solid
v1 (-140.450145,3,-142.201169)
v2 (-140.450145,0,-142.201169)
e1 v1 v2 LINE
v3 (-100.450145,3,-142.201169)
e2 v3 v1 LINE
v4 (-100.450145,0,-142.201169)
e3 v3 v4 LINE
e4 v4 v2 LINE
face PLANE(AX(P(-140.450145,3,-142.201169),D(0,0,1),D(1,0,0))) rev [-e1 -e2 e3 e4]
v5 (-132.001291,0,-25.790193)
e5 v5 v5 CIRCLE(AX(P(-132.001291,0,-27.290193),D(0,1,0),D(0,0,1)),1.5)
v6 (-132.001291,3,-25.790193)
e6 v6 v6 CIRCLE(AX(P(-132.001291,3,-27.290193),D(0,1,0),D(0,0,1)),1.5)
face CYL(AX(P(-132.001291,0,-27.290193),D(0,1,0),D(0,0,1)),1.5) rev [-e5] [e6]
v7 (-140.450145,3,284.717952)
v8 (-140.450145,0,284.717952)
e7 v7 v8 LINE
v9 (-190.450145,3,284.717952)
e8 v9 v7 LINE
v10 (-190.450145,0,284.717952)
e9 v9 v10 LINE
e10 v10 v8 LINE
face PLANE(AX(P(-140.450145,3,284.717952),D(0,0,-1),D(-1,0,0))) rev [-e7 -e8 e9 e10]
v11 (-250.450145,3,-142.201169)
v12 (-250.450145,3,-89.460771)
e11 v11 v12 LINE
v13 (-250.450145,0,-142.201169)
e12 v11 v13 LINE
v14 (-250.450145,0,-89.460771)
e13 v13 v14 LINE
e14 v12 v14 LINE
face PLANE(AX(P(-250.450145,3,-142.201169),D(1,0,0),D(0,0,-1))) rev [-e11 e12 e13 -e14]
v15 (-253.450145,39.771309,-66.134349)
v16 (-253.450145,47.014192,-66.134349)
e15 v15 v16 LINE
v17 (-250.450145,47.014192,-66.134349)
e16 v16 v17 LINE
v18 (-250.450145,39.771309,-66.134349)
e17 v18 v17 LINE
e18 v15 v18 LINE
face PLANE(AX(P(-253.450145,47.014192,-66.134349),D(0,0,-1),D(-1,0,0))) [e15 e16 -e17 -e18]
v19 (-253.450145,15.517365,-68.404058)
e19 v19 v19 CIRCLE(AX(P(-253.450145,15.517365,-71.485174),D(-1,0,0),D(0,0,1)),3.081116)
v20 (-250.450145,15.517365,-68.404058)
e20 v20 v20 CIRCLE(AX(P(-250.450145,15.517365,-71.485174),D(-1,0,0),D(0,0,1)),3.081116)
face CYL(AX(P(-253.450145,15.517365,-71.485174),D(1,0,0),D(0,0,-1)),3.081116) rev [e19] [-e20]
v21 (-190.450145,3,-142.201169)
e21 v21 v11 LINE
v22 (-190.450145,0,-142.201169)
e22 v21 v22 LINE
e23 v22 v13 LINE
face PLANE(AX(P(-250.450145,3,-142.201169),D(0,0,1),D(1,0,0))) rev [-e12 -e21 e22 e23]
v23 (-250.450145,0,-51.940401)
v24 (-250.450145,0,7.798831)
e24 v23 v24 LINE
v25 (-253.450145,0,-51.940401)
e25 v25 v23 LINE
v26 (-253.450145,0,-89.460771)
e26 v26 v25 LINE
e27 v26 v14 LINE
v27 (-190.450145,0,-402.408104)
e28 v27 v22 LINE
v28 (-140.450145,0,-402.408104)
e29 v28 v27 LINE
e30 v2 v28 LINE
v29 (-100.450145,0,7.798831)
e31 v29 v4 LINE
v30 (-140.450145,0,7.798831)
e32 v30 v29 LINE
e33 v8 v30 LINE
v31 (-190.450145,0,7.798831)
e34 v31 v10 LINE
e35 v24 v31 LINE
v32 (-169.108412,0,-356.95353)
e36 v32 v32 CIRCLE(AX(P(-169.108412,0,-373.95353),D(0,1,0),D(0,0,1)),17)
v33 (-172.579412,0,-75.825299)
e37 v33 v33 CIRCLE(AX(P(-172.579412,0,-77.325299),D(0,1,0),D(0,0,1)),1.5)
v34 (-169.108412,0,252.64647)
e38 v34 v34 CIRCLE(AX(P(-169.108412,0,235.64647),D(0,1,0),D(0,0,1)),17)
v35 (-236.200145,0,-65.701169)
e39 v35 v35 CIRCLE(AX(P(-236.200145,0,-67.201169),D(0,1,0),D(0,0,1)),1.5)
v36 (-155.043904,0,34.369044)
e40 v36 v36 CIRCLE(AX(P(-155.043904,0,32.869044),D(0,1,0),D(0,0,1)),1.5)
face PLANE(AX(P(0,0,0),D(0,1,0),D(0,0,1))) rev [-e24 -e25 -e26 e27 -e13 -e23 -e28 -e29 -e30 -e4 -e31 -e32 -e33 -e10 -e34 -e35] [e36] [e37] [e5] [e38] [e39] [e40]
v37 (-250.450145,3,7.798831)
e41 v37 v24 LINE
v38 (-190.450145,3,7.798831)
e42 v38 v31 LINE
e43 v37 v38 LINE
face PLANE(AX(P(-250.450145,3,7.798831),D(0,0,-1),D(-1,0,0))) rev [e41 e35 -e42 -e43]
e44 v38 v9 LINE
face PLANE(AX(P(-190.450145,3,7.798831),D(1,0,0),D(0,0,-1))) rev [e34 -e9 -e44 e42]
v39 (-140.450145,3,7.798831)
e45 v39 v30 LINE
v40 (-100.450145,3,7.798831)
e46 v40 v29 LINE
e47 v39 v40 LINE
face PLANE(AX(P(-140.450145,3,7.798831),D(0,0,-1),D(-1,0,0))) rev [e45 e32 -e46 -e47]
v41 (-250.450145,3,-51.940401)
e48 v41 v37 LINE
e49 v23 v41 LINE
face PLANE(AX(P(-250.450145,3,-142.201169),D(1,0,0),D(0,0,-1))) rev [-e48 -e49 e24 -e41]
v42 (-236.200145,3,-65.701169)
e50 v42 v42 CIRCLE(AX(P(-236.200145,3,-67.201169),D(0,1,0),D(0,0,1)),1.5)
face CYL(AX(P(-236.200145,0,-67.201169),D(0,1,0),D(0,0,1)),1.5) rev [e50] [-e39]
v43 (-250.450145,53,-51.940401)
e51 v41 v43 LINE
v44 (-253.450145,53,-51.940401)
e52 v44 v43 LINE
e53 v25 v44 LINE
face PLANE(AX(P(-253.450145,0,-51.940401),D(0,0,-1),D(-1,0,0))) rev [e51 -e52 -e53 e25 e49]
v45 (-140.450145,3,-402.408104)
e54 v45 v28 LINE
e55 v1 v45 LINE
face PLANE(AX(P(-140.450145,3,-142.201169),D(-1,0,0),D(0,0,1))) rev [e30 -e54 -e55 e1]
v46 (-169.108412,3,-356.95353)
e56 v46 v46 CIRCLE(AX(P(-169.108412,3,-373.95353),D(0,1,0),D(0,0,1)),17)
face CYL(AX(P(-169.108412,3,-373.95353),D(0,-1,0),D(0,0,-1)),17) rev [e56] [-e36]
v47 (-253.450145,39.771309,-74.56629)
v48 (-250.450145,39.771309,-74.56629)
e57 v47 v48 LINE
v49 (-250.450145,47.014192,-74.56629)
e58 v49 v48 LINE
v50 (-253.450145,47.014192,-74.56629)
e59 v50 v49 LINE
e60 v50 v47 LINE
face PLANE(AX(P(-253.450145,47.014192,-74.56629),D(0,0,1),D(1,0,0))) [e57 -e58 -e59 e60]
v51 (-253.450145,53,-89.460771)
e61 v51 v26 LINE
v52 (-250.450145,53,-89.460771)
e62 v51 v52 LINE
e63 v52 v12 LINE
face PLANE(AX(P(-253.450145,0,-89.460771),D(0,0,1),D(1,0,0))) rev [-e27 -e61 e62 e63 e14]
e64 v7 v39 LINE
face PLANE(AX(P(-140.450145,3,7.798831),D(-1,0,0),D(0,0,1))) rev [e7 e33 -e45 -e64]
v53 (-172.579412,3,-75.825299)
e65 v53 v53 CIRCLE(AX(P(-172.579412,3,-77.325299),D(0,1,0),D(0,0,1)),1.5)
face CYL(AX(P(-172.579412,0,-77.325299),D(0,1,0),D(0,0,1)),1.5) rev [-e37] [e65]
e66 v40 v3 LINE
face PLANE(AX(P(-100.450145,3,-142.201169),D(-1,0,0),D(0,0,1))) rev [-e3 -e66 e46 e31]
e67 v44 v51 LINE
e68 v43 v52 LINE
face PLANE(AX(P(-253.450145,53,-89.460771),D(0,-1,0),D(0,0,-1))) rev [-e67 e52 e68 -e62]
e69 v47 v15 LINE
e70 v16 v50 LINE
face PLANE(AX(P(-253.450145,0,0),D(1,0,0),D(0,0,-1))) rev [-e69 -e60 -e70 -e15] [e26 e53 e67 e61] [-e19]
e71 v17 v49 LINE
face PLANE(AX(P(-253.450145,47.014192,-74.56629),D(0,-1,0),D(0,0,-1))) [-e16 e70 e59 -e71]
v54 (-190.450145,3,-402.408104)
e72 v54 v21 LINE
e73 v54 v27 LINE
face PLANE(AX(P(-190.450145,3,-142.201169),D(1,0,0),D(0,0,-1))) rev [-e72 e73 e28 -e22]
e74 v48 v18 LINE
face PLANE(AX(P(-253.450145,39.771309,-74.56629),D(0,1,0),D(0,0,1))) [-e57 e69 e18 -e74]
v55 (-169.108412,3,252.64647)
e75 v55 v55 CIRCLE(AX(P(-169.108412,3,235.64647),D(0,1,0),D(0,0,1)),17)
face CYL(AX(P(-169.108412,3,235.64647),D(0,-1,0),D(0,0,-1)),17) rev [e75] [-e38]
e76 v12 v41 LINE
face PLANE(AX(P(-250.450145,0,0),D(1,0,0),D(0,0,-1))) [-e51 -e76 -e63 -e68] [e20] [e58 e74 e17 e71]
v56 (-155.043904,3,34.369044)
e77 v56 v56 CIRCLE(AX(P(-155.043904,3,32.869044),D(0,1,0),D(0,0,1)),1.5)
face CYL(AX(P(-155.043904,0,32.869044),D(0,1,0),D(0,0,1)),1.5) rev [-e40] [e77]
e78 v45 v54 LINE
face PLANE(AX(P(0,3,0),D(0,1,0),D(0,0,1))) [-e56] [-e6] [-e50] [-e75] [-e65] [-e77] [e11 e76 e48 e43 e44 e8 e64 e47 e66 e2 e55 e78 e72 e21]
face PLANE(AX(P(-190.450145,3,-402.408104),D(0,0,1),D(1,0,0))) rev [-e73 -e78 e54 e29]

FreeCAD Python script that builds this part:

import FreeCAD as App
import Part
import Sketcher
Q = App.Units.Quantity


def add_polygon(sketch, points):
    """Adds a closed chain of lines whose ends are joined by coincident constraints."""
    first, n = sketch.GeometryCount, len(points)
    for a, b in zip(points, points[1:] + points[:1]):
        sketch.addGeometry(Part.LineSegment(App.Vector(*a, 0), App.Vector(*b, 0)), False)
    for i in range(n):
        sketch.addConstraint(Sketcher.Constraint("Coincident", first + i, 2, first + (i + 1) % n, 1))

doc = App.newDocument("Part")
params = doc.addObject("Spreadsheet::Sheet", "Params")
for row, (alias, value) in enumerate([
    ("sketch1_diameter", "34 mm"),
    ("sketch1_width", "40 mm"),
    ("sketch1_width2", "50 mm"),
    ("sketch1_width3", "60 mm"),
    ("sketch1_height", "150 mm"),
    ("pad1_length", "3 mm"),
    ("sketch2_width", "53 mm"),
    ("pad2_length", "3 mm"),
    ("sketch3_diameter", "3 mm"),
    ("pocket1_length", "3 mm"),
], start=1):
    params.set(f"A{row}", alias)
    params.set(f"B{row}", "=" + value)
    params.setAlias(f"B{row}", alias)

body = doc.addObject("PartDesign::Body", "Body")

# Sketch on XZ plane
sketch1 = doc.addObject("Sketcher::SketchObject", "Sketch")
body.addObject(sketch1)
sketch1.AttachmentSupport = (doc.XZ_Plane, [""])
sketch1.MapMode = "FlatFace"
add_polygon(sketch1, [(-100.450145, -142.201169), (-140.450145, -142.201169), (-140.450145, -402.408104), (-190.450145, -402.408104), (-190.450145, -142.201169), (-250.450145, -142.201169), (-250.450145, 7.798831), (-190.450145, 7.798831), (-190.450145, 284.717952), (-140.450145, 284.717952), (-140.450145, 7.798831), (-100.450145, 7.798831)])  # lines 0-11
sketch1.addGeometry(Part.Circle(App.Vector(-169.108412, 235.64647, 0), App.Vector(0, 0, 1), 17), False)  # 12
sketch1.addGeometry(Part.Circle(App.Vector(-169.108412, -373.95353, 0), App.Vector(0, 0, 1), 17), False)  # 13
sketch1.addConstraint([
    Sketcher.Constraint("Horizontal", 0),
    Sketcher.Constraint("Vertical", 1),
    Sketcher.Constraint("Horizontal", 2),
    Sketcher.Constraint("Vertical", 3),
    Sketcher.Constraint("Horizontal", 4),
    Sketcher.Constraint("Vertical", 5),
    Sketcher.Constraint("Horizontal", 6),
    Sketcher.Constraint("Vertical", 7),
    Sketcher.Constraint("Horizontal", 8),
    Sketcher.Constraint("Vertical", 9),
    Sketcher.Constraint("Horizontal", 10),
    Sketcher.Constraint("Vertical", 11),
    Sketcher.Constraint("Equal", 12, 13),
    Sketcher.Constraint("Horizontal", 0, 2, 3, 2),
    Sketcher.Constraint("Horizontal", 6, 2, 9, 2),
    Sketcher.Constraint("Vertical", 12, 3, 13, 3),
    Sketcher.Constraint("Vertical", 3, 2, 6, 2),
    Sketcher.Constraint("Vertical", 1, 2, 8, 2),
    Sketcher.Constraint("Diameter", 12, Q("34 mm")),
    Sketcher.Constraint("DistanceX", 0, 2, 0, 1, Q("40 mm")),
    Sketcher.Constraint("DistanceX", 2, 2, 2, 1, Q("50 mm")),
    Sketcher.Constraint("DistanceX", 4, 2, 4, 1, Q("60 mm")),
    Sketcher.Constraint("DistanceY", 5, 1, 5, 2, Q("150 mm")),
    Sketcher.Constraint("DistanceY", 13, 3, 12, 3, Q("609.6 mm")),
    Sketcher.Constraint("DistanceY", 7, 1, 7, 2, Q("276.919121 mm")),
    Sketcher.Constraint("DistanceY", 1, 2, 1, 1, Q("260.206935 mm")),
    Sketcher.Constraint("DistanceX", 12, 3, -1, 1, Q("169.108412 mm")),
    Sketcher.Constraint("DistanceY", -1, 1, 12, 3, Q("235.64647 mm")),
    Sketcher.Constraint("DistanceY", 0, 2, -1, 1, Q("142.201169 mm")),
    Sketcher.Constraint("DistanceX", 0, 2, -1, 1, Q("140.450145 mm")),
])
sketch1.setExpression("Constraints[30]", "Params.sketch1_diameter")
sketch1.setExpression("Constraints[31]", "Params.sketch1_width")
sketch1.setExpression("Constraints[32]", "Params.sketch1_width2")
sketch1.setExpression("Constraints[33]", "Params.sketch1_width3")
sketch1.setExpression("Constraints[34]", "Params.sketch1_height")
pad1 = doc.addObject("PartDesign::Pad", "Pad")
body.addObject(pad1)
pad1.Profile = sketch1
pad1.setExpression("Length", "Params.pad1_length")
pad1.Reversed = True

# Sketch on YZ plane
sketch2 = doc.addObject("Sketcher::SketchObject", "Sketch001")
body.addObject(sketch2)
sketch2.AttachmentSupport = (doc.YZ_Plane, [""])
sketch2.MapMode = "FlatFace"
sketch2.AttachmentOffset = App.Placement(App.Vector(0, 0, -250.450145), App.Rotation())
add_polygon(sketch2, [(53, -89.460771), (0, -89.460771), (0, -51.940401), (53, -51.940401)])  # lines 0-3
sketch2.addGeometry(Part.Circle(App.Vector(15.517365, -71.485174, 0), App.Vector(0, 0, 1), 3.081116), False)  # 4
add_polygon(sketch2, [(39.771309, -66.134349), (39.771309, -74.56629), (47.014192, -74.56629), (47.014192, -66.134349)])  # lines 5-8
sketch2.addConstraint([
    Sketcher.Constraint("Horizontal", 0),
    Sketcher.Constraint("Vertical", 1),
    Sketcher.Constraint("Horizontal", 2),
    Sketcher.Constraint("Vertical", 3),
    Sketcher.Constraint("Vertical", 5),
    Sketcher.Constraint("Horizontal", 6),
    Sketcher.Constraint("Vertical", 7),
    Sketcher.Constraint("Horizontal", 8),
    Sketcher.Constraint("PointOnObject", 0, 2, -2),
    Sketcher.Constraint("DistanceX", 0, 2, 0, 1, Q("53 mm")),
    Sketcher.Constraint("Diameter", 4, Q("6.162232 mm")),
    Sketcher.Constraint("DistanceY", 1, 1, 1, 2, Q("37.520369 mm")),
    Sketcher.Constraint("DistanceY", 5, 2, 5, 1, Q("8.431941 mm")),
    Sketcher.Constraint("DistanceY", 1, 2, -1, 1, Q("51.940401 mm")),
    Sketcher.Constraint("DistanceX", 6, 1, 6, 2, Q("7.242884 mm")),
    Sketcher.Constraint("DistanceX", -1, 1, 5, 2, Q("39.771309 mm")),
    Sketcher.Constraint("DistanceY", 5, 2, -1, 1, Q("74.56629 mm")),
    Sketcher.Constraint("DistanceX", -1, 1, 4, 3, Q("15.517365 mm")),
    Sketcher.Constraint("DistanceY", 4, 3, -1, 1, Q("71.485174 mm")),
])
sketch2.setExpression("Constraints[17]", "Params.sketch2_width")
pad2 = doc.addObject("PartDesign::Pad", "Pad001")
body.addObject(pad2)
pad2.Profile = sketch2
pad2.setExpression("Length", "Params.pad2_length")
pad2.Reversed = True

# Sketch on XZ plane
sketch3 = doc.addObject("Sketcher::SketchObject", "Sketch002")
body.addObject(sketch3)
sketch3.AttachmentSupport = (doc.XZ_Plane, [""])
sketch3.MapMode = "FlatFace"
sketch3.AttachmentOffset = App.Placement(App.Vector(0, 0, -3), App.Rotation())
sketch3.addGeometry([
    Part.Circle(App.Vector(-236.200145, -67.201169, 0), App.Vector(0, 0, 1), 1.5),  # 0
    Part.Circle(App.Vector(-172.579412, -77.325299, 0), App.Vector(0, 0, 1), 1.5),  # 1
    Part.Circle(App.Vector(-132.001291, -27.290193, 0), App.Vector(0, 0, 1), 1.5),  # 2
    Part.Circle(App.Vector(-155.043904, 32.869044, 0), App.Vector(0, 0, 1), 1.5),  # 3
    Part.Circle(App.Vector(-218.664637, 42.993174, 0), App.Vector(0, 0, 1), 1.5),  # 4
    Part.Circle(App.Vector(-259.242758, -7.041932, 0), App.Vector(0, 0, 1), 1.5),  # 5
], False)
sketch3.addConstraint([
    Sketcher.Constraint("Equal", 0, 1),
    Sketcher.Constraint("Equal", 1, 2),
    Sketcher.Constraint("Equal", 2, 3),
    Sketcher.Constraint("Equal", 3, 4),
    Sketcher.Constraint("Equal", 4, 5),
    Sketcher.Constraint("Diameter", 0, Q("3 mm")),
    Sketcher.Constraint("DistanceY", 1, 3, -1, 1, Q("77.325299 mm")),
    Sketcher.Constraint("DistanceY", 0, 3, -1, 1, Q("67.201169 mm")),
    Sketcher.Constraint("DistanceX", 1, 3, -1, 1, Q("172.579412 mm")),
    Sketcher.Constraint("DistanceX", 2, 3, -1, 1, Q("132.001291 mm")),
    Sketcher.Constraint("DistanceX", 5, 3, -1, 1, Q("259.242758 mm")),
    Sketcher.Constraint("DistanceX", 0, 3, 3, 3, Q("81.156241 mm")),
    Sketcher.Constraint("DistanceY", 3, 3, 4, 3, Q("10.12413 mm")),
    Sketcher.Constraint("DistanceX", 5, 3, 4, 3, Q("40.578121 mm")),
    Sketcher.Constraint("DistanceY", 2, 3, 5, 3, Q("20.24826 mm")),
    Sketcher.Constraint("DistanceX", 0, 3, -1, 1, Q("236.200145 mm")),
    Sketcher.Constraint("DistanceY", 2, 3, -1, 1, Q("27.290193 mm")),
    Sketcher.Constraint("DistanceY", -1, 1, 3, 3, Q("32.869044 mm")),
])
sketch3.setExpression("Constraints[5]", "Params.sketch3_diameter")
pocket1 = doc.addObject("PartDesign::Pocket", "Pocket")
body.addObject(pocket1)
pocket1.Profile = sketch3
pocket1.setExpression("Length", "Params.pocket1_length")
pocket1.Reversed = True

doc.recompute()
